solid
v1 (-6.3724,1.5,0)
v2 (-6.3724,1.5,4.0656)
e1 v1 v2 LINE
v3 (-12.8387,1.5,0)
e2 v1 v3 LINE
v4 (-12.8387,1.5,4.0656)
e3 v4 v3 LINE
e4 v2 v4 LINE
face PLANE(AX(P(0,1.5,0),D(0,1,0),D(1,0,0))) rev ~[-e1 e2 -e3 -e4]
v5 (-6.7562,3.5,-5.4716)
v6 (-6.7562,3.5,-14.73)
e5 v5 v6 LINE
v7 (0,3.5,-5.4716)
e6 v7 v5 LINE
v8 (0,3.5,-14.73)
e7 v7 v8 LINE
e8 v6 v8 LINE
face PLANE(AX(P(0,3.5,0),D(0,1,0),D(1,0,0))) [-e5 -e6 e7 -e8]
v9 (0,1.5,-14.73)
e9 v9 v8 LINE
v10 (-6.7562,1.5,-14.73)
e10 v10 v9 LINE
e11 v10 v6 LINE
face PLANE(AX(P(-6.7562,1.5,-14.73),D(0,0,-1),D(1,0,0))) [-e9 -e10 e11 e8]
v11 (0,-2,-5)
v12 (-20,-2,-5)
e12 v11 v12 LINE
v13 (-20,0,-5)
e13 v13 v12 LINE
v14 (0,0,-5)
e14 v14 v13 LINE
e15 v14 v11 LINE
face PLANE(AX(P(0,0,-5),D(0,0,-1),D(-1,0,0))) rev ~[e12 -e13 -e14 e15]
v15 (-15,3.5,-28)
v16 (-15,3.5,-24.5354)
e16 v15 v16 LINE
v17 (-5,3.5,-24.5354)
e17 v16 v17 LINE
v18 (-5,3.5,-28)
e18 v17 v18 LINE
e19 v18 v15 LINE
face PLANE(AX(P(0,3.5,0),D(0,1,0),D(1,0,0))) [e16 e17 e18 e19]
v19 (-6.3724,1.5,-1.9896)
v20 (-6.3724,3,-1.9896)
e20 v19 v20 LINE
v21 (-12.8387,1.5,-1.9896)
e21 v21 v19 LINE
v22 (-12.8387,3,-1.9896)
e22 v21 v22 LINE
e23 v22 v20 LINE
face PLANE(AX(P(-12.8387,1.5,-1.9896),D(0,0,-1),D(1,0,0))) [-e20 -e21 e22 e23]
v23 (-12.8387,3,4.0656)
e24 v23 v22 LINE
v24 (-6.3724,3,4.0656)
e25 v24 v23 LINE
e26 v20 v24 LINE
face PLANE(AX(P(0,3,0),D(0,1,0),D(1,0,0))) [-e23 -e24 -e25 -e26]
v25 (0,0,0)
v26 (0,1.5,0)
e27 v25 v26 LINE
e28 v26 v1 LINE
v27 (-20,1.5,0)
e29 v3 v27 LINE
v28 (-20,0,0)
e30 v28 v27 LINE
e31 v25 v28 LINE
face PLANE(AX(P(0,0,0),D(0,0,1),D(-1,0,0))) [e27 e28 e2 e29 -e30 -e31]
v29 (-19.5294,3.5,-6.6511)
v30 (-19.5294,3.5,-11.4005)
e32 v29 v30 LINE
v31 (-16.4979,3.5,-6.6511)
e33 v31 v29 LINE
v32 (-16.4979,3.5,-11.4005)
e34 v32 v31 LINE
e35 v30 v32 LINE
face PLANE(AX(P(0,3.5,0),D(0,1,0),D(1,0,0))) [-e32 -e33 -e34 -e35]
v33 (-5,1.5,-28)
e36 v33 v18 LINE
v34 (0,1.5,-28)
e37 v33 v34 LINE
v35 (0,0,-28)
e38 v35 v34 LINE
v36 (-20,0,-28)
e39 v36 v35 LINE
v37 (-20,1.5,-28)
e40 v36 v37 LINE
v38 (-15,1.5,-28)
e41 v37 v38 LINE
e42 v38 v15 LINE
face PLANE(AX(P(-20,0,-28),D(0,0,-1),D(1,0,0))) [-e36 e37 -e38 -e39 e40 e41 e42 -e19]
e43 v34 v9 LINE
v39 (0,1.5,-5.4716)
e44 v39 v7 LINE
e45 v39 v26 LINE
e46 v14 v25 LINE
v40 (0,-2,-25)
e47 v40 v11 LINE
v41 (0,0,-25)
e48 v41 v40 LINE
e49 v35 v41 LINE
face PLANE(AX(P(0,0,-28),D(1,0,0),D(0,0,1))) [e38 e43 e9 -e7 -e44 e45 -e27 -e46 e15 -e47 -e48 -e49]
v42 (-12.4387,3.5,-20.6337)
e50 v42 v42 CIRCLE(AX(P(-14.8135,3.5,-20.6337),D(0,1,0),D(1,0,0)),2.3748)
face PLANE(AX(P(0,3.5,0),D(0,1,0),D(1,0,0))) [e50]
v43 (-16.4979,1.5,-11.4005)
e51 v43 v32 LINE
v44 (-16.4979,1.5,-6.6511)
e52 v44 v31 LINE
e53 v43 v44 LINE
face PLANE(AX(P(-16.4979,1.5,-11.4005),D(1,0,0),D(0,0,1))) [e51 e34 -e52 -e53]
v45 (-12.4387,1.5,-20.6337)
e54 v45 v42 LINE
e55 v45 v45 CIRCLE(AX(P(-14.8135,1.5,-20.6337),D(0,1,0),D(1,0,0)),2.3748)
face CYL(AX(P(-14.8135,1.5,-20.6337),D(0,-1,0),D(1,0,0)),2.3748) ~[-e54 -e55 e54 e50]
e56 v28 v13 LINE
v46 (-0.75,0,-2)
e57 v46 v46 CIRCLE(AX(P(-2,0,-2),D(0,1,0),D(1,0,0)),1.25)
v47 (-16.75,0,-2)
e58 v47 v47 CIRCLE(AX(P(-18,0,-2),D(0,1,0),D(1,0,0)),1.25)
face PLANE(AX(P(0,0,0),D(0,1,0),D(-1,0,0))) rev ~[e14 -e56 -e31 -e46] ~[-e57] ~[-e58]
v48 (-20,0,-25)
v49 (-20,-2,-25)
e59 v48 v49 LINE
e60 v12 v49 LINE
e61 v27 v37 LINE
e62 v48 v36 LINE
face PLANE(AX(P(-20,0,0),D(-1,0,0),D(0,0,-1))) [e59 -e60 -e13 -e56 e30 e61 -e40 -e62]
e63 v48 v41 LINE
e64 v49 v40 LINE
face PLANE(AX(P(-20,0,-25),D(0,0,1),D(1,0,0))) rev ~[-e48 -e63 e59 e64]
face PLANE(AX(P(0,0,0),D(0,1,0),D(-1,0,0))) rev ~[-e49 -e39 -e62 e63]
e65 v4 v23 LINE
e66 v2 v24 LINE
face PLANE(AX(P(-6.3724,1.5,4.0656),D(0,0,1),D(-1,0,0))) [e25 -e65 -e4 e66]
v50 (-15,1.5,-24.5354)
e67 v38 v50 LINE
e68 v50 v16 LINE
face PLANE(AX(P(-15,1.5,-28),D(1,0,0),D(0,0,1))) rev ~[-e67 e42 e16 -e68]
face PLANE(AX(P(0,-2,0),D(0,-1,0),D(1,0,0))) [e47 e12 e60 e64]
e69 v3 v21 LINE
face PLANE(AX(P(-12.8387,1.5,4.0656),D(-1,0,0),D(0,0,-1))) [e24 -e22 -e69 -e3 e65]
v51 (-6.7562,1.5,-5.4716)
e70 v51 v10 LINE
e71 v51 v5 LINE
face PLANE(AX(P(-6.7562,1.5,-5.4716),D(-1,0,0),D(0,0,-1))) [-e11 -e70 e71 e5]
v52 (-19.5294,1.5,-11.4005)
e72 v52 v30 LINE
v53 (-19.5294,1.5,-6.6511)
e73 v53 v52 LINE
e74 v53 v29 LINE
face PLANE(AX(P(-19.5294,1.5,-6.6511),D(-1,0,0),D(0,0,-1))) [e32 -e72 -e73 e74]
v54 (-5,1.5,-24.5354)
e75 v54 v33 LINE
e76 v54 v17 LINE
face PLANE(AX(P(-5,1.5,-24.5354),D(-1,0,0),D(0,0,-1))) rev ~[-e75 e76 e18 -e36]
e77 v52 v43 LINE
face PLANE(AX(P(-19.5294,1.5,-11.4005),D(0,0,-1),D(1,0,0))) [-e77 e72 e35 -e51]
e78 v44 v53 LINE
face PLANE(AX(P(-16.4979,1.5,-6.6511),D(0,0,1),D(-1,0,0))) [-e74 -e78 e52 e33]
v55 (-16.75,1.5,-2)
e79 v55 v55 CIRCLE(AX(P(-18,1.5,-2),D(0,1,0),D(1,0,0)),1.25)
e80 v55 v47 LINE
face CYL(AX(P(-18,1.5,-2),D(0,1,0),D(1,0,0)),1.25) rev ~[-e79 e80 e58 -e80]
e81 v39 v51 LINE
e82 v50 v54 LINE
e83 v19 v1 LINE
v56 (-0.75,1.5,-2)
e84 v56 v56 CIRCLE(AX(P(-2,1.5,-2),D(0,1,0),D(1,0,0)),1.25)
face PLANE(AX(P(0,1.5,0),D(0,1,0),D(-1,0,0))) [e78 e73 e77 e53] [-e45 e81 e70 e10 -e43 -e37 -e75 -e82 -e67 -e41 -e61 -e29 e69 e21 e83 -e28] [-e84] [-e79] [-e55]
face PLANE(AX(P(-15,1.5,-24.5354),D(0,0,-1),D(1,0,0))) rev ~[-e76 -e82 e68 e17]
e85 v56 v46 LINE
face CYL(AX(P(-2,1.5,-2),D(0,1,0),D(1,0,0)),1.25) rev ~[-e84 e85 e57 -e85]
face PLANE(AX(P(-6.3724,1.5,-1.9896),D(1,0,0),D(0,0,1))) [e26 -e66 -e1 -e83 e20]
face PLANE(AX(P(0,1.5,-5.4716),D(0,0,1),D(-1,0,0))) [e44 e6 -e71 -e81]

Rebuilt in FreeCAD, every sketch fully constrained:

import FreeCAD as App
import Part
import Sketcher
Q = App.Units.Quantity


def add_polygon(sketch, points):
    """Adds a closed chain of lines whose ends are joined by coincident constraints."""
    first, n = sketch.GeometryCount, len(points)
    for a, b in zip(points, points[1:] + points[:1]):
        sketch.addGeometry(Part.LineSegment(App.Vector(*a, 0), App.Vector(*b, 0)), False)
    for i in range(n):
        sketch.addConstraint(Sketcher.Constraint("Coincident", first + i, 2, first + (i + 1) % n, 1))

doc = App.newDocument("Part")
params = doc.addObject("Spreadsheet::Sheet", "Params")
for row, (alias, value) in enumerate([
    ("sketch1_width", "20 mm"),
    ("sketch1_height", "28 mm"),
    ("pad1_length", "1.5 mm"),
    ("sketch2_width", "10 mm"),
    ("pad2_length", "2 mm"),
    ("pad3_length", "2 mm"),
    ("pad4_length", "2 mm"),
    ("sketch5_diameter", "2.5 mm"),
    ("pocket1_length", "2 mm"),
    ("sketch6_width", "20 mm"),
    ("pad5_length", "2 mm"),
    ("pad6_length", "2 mm"),
    ("pad7_length", "1.5 mm"),
], start=1):
    params.set(f"A{row}", alias)
    params.set(f"B{row}", "=" + value)
    params.setAlias(f"B{row}", alias)

body = doc.addObject("PartDesign::Body", "Body")

# Sketch on XZ plane
sketch1 = body.newObject("Sketcher::SketchObject", "Sketch")
sketch1.AttachmentSupport = (doc.getObject("XZ_Plane"), [""])
sketch1.MapMode = "FlatFace"
add_polygon(sketch1, [(-20, 0), (0, 0), (0, -28), (-20, -28)])  # lines 0-3
sketch1.addConstraint(Sketcher.Constraint("Horizontal", 0))
sketch1.addConstraint(Sketcher.Constraint("Vertical", 1))
sketch1.addConstraint(Sketcher.Constraint("Horizontal", 2))
sketch1.addConstraint(Sketcher.Constraint("Vertical", 3))
sketch1.addConstraint(Sketcher.Constraint("Coincident", 0, 2, -1, 1))
sketch1.addConstraint(Sketcher.Constraint("DistanceX", 0, 1, 0, 2, Q("20 mm")))
sketch1.addConstraint(Sketcher.Constraint("DistanceY", 1, 2, 1, 1, Q("28 mm")))
sketch1.setExpression("Constraints[9]", "Params.sketch1_width")
sketch1.setExpression("Constraints[10]", "Params.sketch1_height")
pad1 = body.newObject("PartDesign::Pad", "Pad")
pad1.Profile = sketch1
pad1.setExpression("Length", "Params.pad1_length")
pad1.Reversed = True

# Sketch on XZ plane
sketch2 = body.newObject("Sketcher::SketchObject", "Sketch001")
sketch2.AttachmentSupport = (doc.getObject("XZ_Plane"), [""])
sketch2.MapMode = "FlatFace"
sketch2.AttachmentOffset = App.Placement(App.Vector(0, 0, -1.5), App.Rotation())
add_polygon(sketch2, [(-5, -24.5354), (-5, -28), (-15, -28), (-15, -24.5354)])  # lines 0-3
sketch2.addConstraint(Sketcher.Constraint("Vertical", 0))
sketch2.addConstraint(Sketcher.Constraint("Horizontal", 1))
sketch2.addConstraint(Sketcher.Constraint("Vertical", 2))
sketch2.addConstraint(Sketcher.Constraint("Horizontal", 3))
sketch2.addConstraint(Sketcher.Constraint("DistanceX", 1, 2, 1, 1, Q("10 mm")))
sketch2.addConstraint(Sketcher.Constraint("DistanceX", 0, 2, -1, 1, Q("5 mm")))
sketch2.addConstraint(Sketcher.Constraint("DistanceY", 0, 2, -1, 1, Q("28 mm")))
sketch2.addConstraint(Sketcher.Constraint("DistanceY", 0, 2, 0, 1, Q("3.4646 mm")))
sketch2.setExpression("Constraints[8]", "Params.sketch2_width")
pad2 = body.newObject("PartDesign::Pad", "Pad001")
pad2.Profile = sketch2
pad2.setExpression("Length", "Params.pad2_length")
pad2.Reversed = True

# Sketch on XZ plane
sketch3 = body.newObject("Sketcher::SketchObject", "Sketch002")
sketch3.AttachmentSupport = (doc.getObject("XZ_Plane"), [""])
sketch3.MapMode = "FlatFace"
sketch3.AttachmentOffset = App.Placement(App.Vector(0, 0, -1.5), App.Rotation())
add_polygon(sketch3, [(-6.7562, -5.4716), (0, -5.4716), (0, -14.73), (-6.7562, -14.73)])  # lines 0-3
sketch3.addConstraint(Sketcher.Constraint("Horizontal", 0))
sketch3.addConstraint(Sketcher.Constraint("Vertical", 1))
sketch3.addConstraint(Sketcher.Constraint("Horizontal", 2))
sketch3.addConstraint(Sketcher.Constraint("Vertical", 3))
sketch3.addConstraint(Sketcher.Constraint("PointOnObject", 0, 2, -2))
sketch3.addConstraint(Sketcher.Constraint("DistanceY", 1, 2, -1, 1, Q("14.73 mm")))
sketch3.addConstraint(Sketcher.Constraint("DistanceX", 0, 1, 0, 2, Q("6.7562 mm")))
sketch3.addConstraint(Sketcher.Constraint("DistanceY", 1, 2, 1, 1, Q("9.2584 mm")))
pad3 = body.newObject("PartDesign::Pad", "Pad002")
pad3.Profile = sketch3
pad3.setExpression("Length", "Params.pad3_length")
pad3.Reversed = True

# Sketch on XZ plane
sketch4 = body.newObject("Sketcher::SketchObject", "Sketch003")
sketch4.AttachmentSupport = (doc.getObject("XZ_Plane"), [""])
sketch4.MapMode = "FlatFace"
sketch4.AttachmentOffset = App.Placement(App.Vector(0, 0, -1.5), App.Rotation())
sketch4.addGeometry(Part.Circle(App.Vector(-14.8135, -20.6337, 0), App.Vector(0, 0, 1), 2.3748), False)
sketch4.addConstraint(Sketcher.Constraint("Diameter", 0, Q("4.7496 mm")))
sketch4.addConstraint(Sketcher.Constraint("DistanceX", 0, 3, -1, 1, Q("14.8135 mm")))
sketch4.addConstraint(Sketcher.Constraint("DistanceY", 0, 3, -1, 1, Q("20.6337 mm")))
pad4 = body.newObject("PartDesign::Pad", "Pad003")
pad4.Profile = sketch4
pad4.setExpression("Length", "Params.pad4_length")
pad4.Reversed = True

# Sketch on XZ plane
sketch5 = body.newObject("Sketcher::SketchObject", "Sketch004")
sketch5.AttachmentSupport = (doc.getObject("XZ_Plane"), [""])
sketch5.MapMode = "FlatFace"
sketch5.AttachmentOffset = App.Placement(App.Vector(0, 0, -1.5), App.Rotation())
sketch5.addGeometry(Part.Circle(App.Vector(-2, -2, 0), App.Vector(0, 0, 1), 1.25), False)
sketch5.addGeometry(Part.Circle(App.Vector(-18, -2, 0), App.Vector(0, 0, 1), 1.25), False)
sketch5.addConstraint(Sketcher.Constraint("Equal", 0, 1))
sketch5.addConstraint(Sketcher.Constraint("Horizontal", 0, 3, 1, 3))
sketch5.addConstraint(Sketcher.Constraint("Diameter", 0, Q("2.5 mm")))
sketch5.addConstraint(Sketcher.Constraint("DistanceX", 0, 3, -1, 1, Q("2 mm")))
sketch5.addConstraint(Sketcher.Constraint("DistanceY", 0, 3, -1, 1, Q("2 mm")))
sketch5.addConstraint(Sketcher.Constraint("DistanceX", 1, 3, -1, 1, Q("18 mm")))
sketch5.setExpression("Constraints[2]", "Params.sketch5_diameter")
pocket1 = body.newObject("PartDesign::Pocket", "Pocket")
pocket1.Profile = sketch5
pocket1.setExpression("Length", "Params.pocket1_length")
pocket1.Reversed = True

# Sketch on XZ plane
sketch6 = body.newObject("Sketcher::SketchObject", "Sketch005")
sketch6.AttachmentSupport = (doc.getObject("XZ_Plane"), [""])
sketch6.MapMode = "FlatFace"
add_polygon(sketch6, [(0, -5), (-20, -5), (-20, -25), (0, -25)])  # lines 0-3
sketch6.addConstraint(Sketcher.Constraint("Horizontal", 0))
sketch6.addConstraint(Sketcher.Constraint("Vertical", 1))
sketch6.addConstraint(Sketcher.Constraint("Horizontal", 2))
sketch6.addConstraint(Sketcher.Constraint("Vertical", 3))
sketch6.addConstraint(Sketcher.Constraint("PointOnObject", 2, 2, -2))
sketch6.addConstraint(Sketcher.Constraint("Equal", 2, 1))
sketch6.addConstraint(Sketcher.Constraint("DistanceY", 0, 2, -1, 1, Q("5 mm")))
sketch6.addConstraint(Sketcher.Constraint("DistanceX", 0, 2, 0, 1, Q("20 mm")))
sketch6.setExpression("Constraints[11]", "Params.sketch6_width")
pad5 = body.newObject("PartDesign::Pad", "Pad004")
pad5.Profile = sketch6
pad5.setExpression("Length", "Params.pad5_length")

# Sketch on XZ plane
sketch7 = body.newObject("Sketcher::SketchObject", "Sketch006")
sketch7.AttachmentSupport = (doc.getObject("XZ_Plane"), [""])
sketch7.MapMode = "FlatFace"
sketch7.AttachmentOffset = App.Placement(App.Vector(0, 0, -1.5), App.Rotation())
add_polygon(sketch7, [(-19.5294, -6.6511), (-16.4979, -6.6511), (-16.4979, -11.4005), (-19.5294, -11.4005)])  # lines 0-3
sketch7.addConstraint(Sketcher.Constraint("Horizontal", 0))
sketch7.addConstraint(Sketcher.Constraint("Vertical", 1))
sketch7.addConstraint(Sketcher.Constraint("Horizontal", 2))
sketch7.addConstraint(Sketcher.Constraint("Vertical", 3))
sketch7.addConstraint(Sketcher.Constraint("DistanceX", 0, 1, 0, 2, Q("3.0315 mm")))
sketch7.addConstraint(Sketcher.Constraint("DistanceY", 1, 2, 1, 1, Q("4.7494 mm")))
sketch7.addConstraint(Sketcher.Constraint("DistanceX", 0, 2, -1, 1, Q("16.498 mm")))
sketch7.addConstraint(Sketcher.Constraint("DistanceY", 0, 2, -1, 1, Q("6.651 mm")))
pad6 = body.newObject("PartDesign::Pad", "Pad005")
pad6.Profile = sketch7
pad6.setExpression("Length", "Params.pad6_length")
pad6.Reversed = True

# Sketch on XZ plane
sketch8 = body.newObject("Sketcher::SketchObject", "Sketch007")
sketch8.AttachmentSupport = (doc.getObject("XZ_Plane"), [""])
sketch8.MapMode = "FlatFace"
sketch8.AttachmentOffset = App.Placement(App.Vector(0, 0, -1.5), App.Rotation())
add_polygon(sketch8, [(-6.3724, -1.9896), (-12.8387, -1.9896), (-12.8387, 4.0656), (-6.3724, 4.0656)])  # lines 0-3
sketch8.addConstraint(Sketcher.Constraint("Horizontal", 0))
sketch8.addConstraint(Sketcher.Constraint("Vertical", 1))
sketch8.addConstraint(Sketcher.Constraint("Horizontal", 2))
sketch8.addConstraint(Sketcher.Constraint("Vertical", 3))
sketch8.addConstraint(Sketcher.Constraint("DistanceX", 0, 2, 0, 1, Q("6.4663 mm")))
sketch8.addConstraint(Sketcher.Constraint("DistanceY", 1, 1, 1, 2, Q("6.0552 mm")))
sketch8.addConstraint(Sketcher.Constraint("DistanceX", 0, 2, -1, 1, Q("12.8387 mm")))
sketch8.addConstraint(Sketcher.Constraint("DistanceY", 0, 2, -1, 1, Q("1.9896 mm")))
pad7 = body.newObject("PartDesign::Pad", "Pad006")
pad7.Profile = sketch8
pad7.setExpression("Length", "Params.pad7_length")
pad7.Reversed = True

doc.recompute()
